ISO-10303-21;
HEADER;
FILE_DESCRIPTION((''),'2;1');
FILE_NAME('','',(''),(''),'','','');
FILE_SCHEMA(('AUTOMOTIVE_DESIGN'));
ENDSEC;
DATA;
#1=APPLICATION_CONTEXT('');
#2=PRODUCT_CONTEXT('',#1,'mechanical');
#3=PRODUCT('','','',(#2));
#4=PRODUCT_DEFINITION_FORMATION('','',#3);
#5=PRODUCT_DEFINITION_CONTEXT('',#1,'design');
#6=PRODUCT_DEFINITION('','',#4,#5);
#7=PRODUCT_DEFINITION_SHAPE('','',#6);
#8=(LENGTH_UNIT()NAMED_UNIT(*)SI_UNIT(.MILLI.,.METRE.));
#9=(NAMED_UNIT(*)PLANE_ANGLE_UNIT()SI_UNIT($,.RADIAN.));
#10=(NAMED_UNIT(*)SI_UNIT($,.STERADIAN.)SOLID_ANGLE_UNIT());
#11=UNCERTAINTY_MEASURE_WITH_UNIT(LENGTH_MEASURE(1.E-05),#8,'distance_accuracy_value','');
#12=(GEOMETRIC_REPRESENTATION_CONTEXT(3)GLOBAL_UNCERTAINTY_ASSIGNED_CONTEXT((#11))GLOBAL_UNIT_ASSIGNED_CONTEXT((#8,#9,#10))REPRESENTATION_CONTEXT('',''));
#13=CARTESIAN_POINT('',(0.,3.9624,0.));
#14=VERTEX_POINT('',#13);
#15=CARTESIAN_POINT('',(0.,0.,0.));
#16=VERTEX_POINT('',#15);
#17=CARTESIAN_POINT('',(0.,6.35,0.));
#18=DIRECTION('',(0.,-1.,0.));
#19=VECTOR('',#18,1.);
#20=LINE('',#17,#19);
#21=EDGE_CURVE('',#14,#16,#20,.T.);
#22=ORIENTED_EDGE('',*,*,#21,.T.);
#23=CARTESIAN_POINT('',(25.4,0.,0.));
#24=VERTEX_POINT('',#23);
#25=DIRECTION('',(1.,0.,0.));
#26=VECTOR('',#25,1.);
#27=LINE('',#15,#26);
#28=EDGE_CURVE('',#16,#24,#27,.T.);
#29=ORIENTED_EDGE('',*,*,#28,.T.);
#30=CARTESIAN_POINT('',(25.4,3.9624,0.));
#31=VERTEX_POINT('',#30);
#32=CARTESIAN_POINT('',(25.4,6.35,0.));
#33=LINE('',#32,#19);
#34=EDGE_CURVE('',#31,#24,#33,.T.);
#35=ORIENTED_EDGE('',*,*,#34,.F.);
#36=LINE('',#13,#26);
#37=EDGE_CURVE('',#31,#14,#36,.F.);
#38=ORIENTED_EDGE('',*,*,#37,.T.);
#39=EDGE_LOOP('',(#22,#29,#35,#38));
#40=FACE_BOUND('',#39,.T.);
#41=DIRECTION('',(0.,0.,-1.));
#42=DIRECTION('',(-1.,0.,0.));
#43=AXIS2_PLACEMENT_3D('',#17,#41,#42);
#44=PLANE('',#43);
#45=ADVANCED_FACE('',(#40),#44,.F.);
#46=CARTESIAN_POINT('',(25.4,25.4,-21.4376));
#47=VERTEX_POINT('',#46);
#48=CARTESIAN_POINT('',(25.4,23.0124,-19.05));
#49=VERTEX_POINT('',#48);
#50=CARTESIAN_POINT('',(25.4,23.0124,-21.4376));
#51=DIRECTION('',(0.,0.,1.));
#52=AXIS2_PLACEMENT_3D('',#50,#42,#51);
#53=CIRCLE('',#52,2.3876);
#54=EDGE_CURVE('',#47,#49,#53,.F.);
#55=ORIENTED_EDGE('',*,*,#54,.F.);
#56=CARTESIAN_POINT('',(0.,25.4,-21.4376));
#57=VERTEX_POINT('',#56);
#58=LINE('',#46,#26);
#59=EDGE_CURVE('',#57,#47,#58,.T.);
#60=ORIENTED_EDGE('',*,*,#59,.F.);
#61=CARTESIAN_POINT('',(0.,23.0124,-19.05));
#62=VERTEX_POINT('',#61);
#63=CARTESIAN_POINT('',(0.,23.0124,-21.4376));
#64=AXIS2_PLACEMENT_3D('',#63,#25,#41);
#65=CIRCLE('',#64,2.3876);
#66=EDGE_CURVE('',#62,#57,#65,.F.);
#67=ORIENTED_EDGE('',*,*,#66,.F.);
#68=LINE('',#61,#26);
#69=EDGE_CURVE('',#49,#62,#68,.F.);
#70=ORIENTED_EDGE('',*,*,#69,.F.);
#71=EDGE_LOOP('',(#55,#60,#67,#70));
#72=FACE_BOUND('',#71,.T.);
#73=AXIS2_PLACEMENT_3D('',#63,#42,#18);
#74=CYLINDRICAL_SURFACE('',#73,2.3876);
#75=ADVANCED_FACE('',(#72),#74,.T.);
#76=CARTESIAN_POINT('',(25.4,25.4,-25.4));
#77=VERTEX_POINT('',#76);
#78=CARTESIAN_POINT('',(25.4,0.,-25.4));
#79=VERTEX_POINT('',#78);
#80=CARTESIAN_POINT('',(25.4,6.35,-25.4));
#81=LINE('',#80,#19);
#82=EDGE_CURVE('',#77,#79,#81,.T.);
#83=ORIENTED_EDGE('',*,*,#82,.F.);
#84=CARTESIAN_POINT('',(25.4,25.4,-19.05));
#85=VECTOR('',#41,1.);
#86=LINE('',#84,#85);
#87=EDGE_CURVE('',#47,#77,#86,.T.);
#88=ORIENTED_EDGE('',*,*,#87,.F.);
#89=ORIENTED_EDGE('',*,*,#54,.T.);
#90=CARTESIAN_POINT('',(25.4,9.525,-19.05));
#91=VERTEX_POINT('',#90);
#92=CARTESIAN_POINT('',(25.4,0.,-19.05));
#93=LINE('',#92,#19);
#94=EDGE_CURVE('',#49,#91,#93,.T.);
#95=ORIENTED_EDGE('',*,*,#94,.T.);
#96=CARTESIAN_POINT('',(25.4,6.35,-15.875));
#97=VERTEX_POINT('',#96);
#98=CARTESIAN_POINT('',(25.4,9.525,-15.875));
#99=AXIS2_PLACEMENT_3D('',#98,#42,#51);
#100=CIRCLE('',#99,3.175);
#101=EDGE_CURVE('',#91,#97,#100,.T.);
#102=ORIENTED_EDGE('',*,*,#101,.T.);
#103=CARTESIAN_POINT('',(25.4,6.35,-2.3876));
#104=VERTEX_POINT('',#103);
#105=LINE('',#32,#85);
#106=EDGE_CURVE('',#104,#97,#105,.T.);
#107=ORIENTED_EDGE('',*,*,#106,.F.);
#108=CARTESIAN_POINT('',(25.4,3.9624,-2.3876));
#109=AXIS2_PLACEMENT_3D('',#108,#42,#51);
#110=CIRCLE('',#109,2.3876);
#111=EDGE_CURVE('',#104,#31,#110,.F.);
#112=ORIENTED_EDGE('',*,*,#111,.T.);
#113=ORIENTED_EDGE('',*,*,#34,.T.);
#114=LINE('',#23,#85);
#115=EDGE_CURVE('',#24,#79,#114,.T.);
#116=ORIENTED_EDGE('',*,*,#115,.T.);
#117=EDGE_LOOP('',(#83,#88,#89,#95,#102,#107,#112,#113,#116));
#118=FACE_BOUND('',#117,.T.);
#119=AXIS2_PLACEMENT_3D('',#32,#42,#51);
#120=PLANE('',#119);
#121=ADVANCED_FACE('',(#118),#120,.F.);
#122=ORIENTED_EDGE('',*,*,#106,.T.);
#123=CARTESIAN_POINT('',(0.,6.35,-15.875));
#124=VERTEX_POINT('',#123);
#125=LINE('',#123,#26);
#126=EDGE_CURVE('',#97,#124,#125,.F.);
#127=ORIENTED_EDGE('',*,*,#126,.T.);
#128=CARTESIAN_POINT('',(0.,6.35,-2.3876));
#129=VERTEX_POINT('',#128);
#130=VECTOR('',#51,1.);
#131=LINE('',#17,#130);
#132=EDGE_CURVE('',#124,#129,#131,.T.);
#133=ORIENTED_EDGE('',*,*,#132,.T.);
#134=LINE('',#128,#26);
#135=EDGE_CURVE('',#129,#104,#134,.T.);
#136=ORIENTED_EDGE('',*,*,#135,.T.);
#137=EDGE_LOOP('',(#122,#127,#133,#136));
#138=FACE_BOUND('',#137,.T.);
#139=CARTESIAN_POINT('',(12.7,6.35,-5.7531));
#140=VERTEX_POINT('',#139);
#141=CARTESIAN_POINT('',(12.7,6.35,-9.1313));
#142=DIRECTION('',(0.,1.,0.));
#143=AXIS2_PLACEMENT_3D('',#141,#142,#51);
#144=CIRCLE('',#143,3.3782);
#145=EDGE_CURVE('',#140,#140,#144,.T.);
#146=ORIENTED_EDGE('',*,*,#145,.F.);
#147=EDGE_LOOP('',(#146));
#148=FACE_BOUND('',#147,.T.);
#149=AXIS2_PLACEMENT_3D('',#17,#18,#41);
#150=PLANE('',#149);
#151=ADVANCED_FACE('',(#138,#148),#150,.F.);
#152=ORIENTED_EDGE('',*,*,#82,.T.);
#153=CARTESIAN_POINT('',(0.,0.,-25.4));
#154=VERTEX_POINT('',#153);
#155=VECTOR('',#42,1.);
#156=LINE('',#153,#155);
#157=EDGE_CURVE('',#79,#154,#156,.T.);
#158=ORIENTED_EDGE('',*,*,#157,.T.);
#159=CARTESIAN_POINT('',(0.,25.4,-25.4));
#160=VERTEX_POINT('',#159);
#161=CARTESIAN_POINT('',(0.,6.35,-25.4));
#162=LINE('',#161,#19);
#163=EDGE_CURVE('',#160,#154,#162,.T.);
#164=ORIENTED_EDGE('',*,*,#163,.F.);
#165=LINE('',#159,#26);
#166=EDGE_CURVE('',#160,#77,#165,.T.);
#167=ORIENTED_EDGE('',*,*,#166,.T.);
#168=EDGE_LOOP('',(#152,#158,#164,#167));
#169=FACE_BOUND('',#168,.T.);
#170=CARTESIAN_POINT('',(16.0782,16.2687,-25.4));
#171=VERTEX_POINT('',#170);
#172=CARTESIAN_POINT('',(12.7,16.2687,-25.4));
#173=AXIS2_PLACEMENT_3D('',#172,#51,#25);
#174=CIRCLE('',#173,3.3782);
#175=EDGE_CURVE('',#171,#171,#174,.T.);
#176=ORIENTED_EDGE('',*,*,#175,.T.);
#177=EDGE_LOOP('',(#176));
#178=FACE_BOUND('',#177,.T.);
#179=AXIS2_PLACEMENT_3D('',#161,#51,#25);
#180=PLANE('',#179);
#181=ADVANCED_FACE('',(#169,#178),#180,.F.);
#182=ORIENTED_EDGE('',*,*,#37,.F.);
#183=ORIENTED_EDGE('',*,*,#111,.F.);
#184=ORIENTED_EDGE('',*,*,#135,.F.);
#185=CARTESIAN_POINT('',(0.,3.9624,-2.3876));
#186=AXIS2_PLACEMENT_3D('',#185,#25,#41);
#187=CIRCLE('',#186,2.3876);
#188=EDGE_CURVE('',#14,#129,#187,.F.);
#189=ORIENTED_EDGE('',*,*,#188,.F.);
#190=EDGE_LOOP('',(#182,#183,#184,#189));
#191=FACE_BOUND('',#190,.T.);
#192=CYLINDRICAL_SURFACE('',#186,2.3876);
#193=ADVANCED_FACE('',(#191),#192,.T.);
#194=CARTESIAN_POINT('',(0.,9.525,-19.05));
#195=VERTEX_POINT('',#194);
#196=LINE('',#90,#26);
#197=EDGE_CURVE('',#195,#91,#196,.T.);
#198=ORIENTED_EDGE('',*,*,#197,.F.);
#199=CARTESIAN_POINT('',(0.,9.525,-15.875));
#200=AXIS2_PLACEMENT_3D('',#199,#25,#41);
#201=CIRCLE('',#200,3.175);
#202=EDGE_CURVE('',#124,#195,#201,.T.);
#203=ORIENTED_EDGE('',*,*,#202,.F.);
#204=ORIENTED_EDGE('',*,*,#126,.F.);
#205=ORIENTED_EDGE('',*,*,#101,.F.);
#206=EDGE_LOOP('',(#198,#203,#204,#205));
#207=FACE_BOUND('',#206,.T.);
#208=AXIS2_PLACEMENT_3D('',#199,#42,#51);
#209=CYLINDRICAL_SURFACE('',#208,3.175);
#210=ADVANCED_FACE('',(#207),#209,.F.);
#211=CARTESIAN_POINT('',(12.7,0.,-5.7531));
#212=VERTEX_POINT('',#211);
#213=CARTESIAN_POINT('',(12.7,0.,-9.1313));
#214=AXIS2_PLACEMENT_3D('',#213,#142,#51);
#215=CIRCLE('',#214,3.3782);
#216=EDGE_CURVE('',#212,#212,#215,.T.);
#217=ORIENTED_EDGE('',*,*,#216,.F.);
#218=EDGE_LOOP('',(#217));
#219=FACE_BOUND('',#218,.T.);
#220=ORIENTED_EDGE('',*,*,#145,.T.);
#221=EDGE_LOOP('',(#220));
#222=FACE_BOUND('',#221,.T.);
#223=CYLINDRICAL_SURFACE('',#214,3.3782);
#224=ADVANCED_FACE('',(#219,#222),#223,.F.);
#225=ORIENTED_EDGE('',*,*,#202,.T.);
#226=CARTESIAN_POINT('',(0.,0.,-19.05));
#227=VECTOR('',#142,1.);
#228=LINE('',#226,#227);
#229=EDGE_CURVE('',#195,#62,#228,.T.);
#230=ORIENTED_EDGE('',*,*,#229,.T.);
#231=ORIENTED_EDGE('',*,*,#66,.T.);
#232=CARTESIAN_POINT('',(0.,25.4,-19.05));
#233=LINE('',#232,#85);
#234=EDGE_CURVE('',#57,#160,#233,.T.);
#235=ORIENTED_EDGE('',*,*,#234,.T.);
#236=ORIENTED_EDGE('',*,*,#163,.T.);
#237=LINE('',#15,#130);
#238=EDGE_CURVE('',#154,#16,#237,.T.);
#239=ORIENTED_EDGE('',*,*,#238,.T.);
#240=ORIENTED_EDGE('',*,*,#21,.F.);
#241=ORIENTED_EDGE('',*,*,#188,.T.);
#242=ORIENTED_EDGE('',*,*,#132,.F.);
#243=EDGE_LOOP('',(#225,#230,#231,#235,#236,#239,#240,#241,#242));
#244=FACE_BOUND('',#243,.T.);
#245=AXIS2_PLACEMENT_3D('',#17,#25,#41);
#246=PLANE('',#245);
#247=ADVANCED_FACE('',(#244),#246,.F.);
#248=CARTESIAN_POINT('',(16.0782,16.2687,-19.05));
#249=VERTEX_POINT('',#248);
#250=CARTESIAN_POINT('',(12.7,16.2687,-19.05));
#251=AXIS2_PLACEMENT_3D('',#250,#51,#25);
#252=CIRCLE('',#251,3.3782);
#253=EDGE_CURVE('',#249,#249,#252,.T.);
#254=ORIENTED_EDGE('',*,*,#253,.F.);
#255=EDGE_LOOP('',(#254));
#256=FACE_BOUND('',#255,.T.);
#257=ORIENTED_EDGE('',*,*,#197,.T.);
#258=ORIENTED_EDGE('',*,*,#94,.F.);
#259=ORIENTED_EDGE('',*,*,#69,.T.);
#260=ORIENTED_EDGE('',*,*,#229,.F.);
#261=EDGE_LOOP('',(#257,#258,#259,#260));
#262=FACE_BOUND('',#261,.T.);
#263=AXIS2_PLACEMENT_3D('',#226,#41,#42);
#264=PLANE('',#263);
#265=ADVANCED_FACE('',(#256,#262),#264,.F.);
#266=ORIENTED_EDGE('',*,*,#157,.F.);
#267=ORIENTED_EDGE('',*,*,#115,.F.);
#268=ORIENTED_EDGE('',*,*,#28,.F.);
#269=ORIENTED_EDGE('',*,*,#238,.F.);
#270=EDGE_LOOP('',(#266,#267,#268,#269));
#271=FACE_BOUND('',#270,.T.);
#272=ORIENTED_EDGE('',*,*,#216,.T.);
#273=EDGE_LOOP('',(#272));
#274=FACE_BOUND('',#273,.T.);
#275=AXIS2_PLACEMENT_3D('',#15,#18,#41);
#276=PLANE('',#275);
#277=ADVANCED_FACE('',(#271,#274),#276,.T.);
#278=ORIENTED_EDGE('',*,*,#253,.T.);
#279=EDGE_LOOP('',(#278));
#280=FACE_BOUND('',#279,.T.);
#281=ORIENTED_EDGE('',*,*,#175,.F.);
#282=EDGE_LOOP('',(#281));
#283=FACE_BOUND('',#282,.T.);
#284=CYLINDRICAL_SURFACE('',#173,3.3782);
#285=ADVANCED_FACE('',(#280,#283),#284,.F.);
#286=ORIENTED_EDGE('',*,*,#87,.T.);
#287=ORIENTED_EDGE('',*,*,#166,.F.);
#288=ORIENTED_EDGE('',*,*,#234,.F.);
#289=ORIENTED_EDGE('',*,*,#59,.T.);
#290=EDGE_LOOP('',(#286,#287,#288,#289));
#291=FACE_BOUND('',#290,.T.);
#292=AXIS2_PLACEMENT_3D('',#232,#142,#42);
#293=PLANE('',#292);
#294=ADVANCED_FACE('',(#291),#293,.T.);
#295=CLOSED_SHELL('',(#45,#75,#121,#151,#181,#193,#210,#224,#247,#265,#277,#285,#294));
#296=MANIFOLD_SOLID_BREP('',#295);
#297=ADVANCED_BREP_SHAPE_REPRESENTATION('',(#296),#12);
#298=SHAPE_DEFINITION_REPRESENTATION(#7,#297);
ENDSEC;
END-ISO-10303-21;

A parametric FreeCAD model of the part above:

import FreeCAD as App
import Part
import Sketcher

V = App.Vector
Q = App.Units.Quantity


def edges_at(feature, points):
    """Names of the edges that pass closest to the given points."""
    edges = feature.Shape.Edges
    near = lambda p: min(range(len(edges)), key=lambda i: edges[i].distToShape(Part.Vertex(*p))[0])
    return sorted({f"Edge{near(p) + 1}" for p in points})

doc = App.newDocument("Part")
body = doc.addObject("PartDesign::Body", "Body")

sketch1 = body.newObject("Sketcher::SketchObject", "Sketch")
sketch1.AttachmentSupport = (doc.getObject("XZ_Plane"), [""])
sketch1.MapMode = "FlatFace"
sketch1.addGeometry(Part.LineSegment(V(0, -25.4, 0), V(0, 0, 0)), False)
sketch1.addGeometry(Part.LineSegment(V(0, 0, 0), V(25.4, 0, 0)), False)
sketch1.addGeometry(Part.LineSegment(V(25.4, 0, 0), V(25.4, -25.4, 0)), False)
sketch1.addGeometry(Part.LineSegment(V(25.4, -25.4, 0), V(0, -25.4, 0)), False)
sketch1.addConstraint(Sketcher.Constraint("Coincident", 0, 2, 1, 1))
sketch1.addConstraint(Sketcher.Constraint("Coincident", 1, 2, 2, 1))
sketch1.addConstraint(Sketcher.Constraint("Coincident", 2, 2, 3, 1))
sketch1.addConstraint(Sketcher.Constraint("Coincident", 3, 2, 0, 1))
sketch1.addConstraint(Sketcher.Constraint("Vertical", 0))
sketch1.addConstraint(Sketcher.Constraint("Horizontal", 1))
sketch1.addConstraint(Sketcher.Constraint("Vertical", 2))
sketch1.addConstraint(Sketcher.Constraint("Horizontal", 3))
sketch1.addConstraint(Sketcher.Constraint("Coincident", 0, 2, -1, 1))
sketch1.addConstraint(Sketcher.Constraint("Equal", 3, 0))
sketch1.addConstraint(Sketcher.Constraint("DistanceX", 1, 1, 1, 2, Q("1 in")))
pad1 = body.newObject("PartDesign::Pad", "Pad")
pad1.Profile = sketch1
pad1.Length = Q("0.25 in")
pad1.Reversed = True

sketch2 = body.newObject("Sketcher::SketchObject", "Sketch001")
sketch2.AttachmentSupport = (doc.getObject("XY_Plane"), [""])
sketch2.MapMode = "FlatFace"
sketch2.AttachmentOffset = App.Placement(V(0, 0, -1 * 25.4), App.Rotation())
sketch2.addGeometry(Part.LineSegment(V(25.4, 25.4, 0), V(25.4, 0, 0)), False)
sketch2.addGeometry(Part.LineSegment(V(25.4, 0, 0), V(0, 0, 0)), False)
sketch2.addGeometry(Part.LineSegment(V(0, 0, 0), V(0, 25.4, 0)), False)
sketch2.addGeometry(Part.LineSegment(V(0, 25.4, 0), V(25.4, 25.4, 0)), False)
sketch2.addConstraint(Sketcher.Constraint("Coincident", 0, 2, 1, 1))
sketch2.addConstraint(Sketcher.Constraint("Coincident", 1, 2, 2, 1))
sketch2.addConstraint(Sketcher.Constraint("Coincident", 2, 2, 3, 1))
sketch2.addConstraint(Sketcher.Constraint("Coincident", 3, 2, 0, 1))
sketch2.addConstraint(Sketcher.Constraint("Vertical", 0))
sketch2.addConstraint(Sketcher.Constraint("Horizontal", 1))
sketch2.addConstraint(Sketcher.Constraint("Vertical", 2))
sketch2.addConstraint(Sketcher.Constraint("Horizontal", 3))
sketch2.addConstraint(Sketcher.Constraint("Coincident", 1, 2, -1, 1))
sketch2.addConstraint(Sketcher.Constraint("Equal", 3, 0))
sketch2.addConstraint(Sketcher.Constraint("DistanceX", 1, 2, 1, 1, Q("1 in")))
pad2 = body.newObject("PartDesign::Pad", "Pad001")
pad2.Profile = sketch2
pad2.Length = Q("0.25 in")
doc.recompute()

fillet = body.newObject("PartDesign::Fillet", "Fillet")
fillet.Base = (pad2, edges_at(pad2, [(12.7, 6.35, -19.05)]))
fillet.Radius = Q("0.125 in")
doc.recompute()

fillet2 = body.newObject("PartDesign::Fillet", "Fillet001")
fillet2.Base = (fillet, edges_at(fillet, [(12.7, 25.4, -19.05), (12.7, 6.35, 0)]))
fillet2.Radius = Q("0.094 in")

sketch3 = body.newObject("Sketcher::SketchObject", "Sketch002")
sketch3.AttachmentSupport = (doc.getObject("XZ_Plane"), [""])
sketch3.MapMode = "FlatFace"
sketch3.AttachmentOffset = App.Placement(V(0, 0, -0.25 * 25.4), App.Rotation())
sketch3.addGeometry(Part.Circle(V(12.7, -9.1313, 0), V(0, 0, 1), 3.3782), False)
sketch3.addGeometry(Part.Circle(V(29.80436, -9.1313, 0), V(0, 0, 1), 3.3782), False)
sketch3.addGeometry(Part.Circle(V(46.39564, -9.1313, 0), V(0, 0, 1), 3.3782), False)
sketch3.addGeometry(Part.Circle(V(33.500058, -19.570387, 0), V(0, 0, 1), 3.3782), False)
sketch3.addConstraint(Sketcher.Constraint("Equal", 0, 1))
sketch3.addConstraint(Sketcher.Constraint("Equal", 1, 2))
sketch3.addConstraint(Sketcher.Constraint("Equal", 2, 3))
sketch3.addConstraint(Sketcher.Constraint("Horizontal", 0, 3, 1, 3))
sketch3.addConstraint(Sketcher.Constraint("Horizontal", 1, 3, 2, 3))
sketch3.addConstraint(Sketcher.Constraint("Diameter", 0, Q("0.266 in")))
sketch3.addConstraint(Sketcher.Constraint("DistanceX", -1, 1, 0, 3, Q("0.5 in")))
sketch3.addConstraint(Sketcher.Constraint("DistanceY", 0, 3, -1, 1, Q("0.3595 in")))
sketch3.addConstraint(Sketcher.Constraint("DistanceX", -1, 1, 1, 3, Q("1.1734 in")))
sketch3.addConstraint(Sketcher.Constraint("DistanceX", -1, 1, 2, 3, Q("1.8266 in")))
sketch3.addConstraint(Sketcher.Constraint("DistanceX", -1, 1, 3, 3, Q("1.3188999 in")))
sketch3.addConstraint(Sketcher.Constraint("DistanceY", 3, 3, -1, 1, 19.570387))
pocket1 = body.newObject("PartDesign::Pocket", "Pocket")
pocket1.Profile = sketch3
pocket1.Type = "ThroughAll"
pocket1.Reversed = True

sketch4 = body.newObject("Sketcher::SketchObject", "Sketch003")
sketch4.AttachmentSupport = (doc.getObject("XY_Plane"), [""])
sketch4.MapMode = "FlatFace"
sketch4.AttachmentOffset = App.Placement(V(0, 0, -0.75 * 25.4), App.Rotation())
sketch4.addGeometry(Part.Circle(V(-37.07384, 16.2687, 0), V(0, 0, 1), 3.3782), False)
sketch4.addGeometry(Part.Circle(V(-20.48256, 16.2687, 0), V(0, 0, 1), 3.3782), False)
sketch4.addGeometry(Part.Circle(V(-3.89128, 16.2687, 0), V(0, 0, 1), 3.3782), False)
sketch4.addGeometry(Part.Circle(V(12.7, 16.2687, 0), V(0, 0, 1), 3.3782), False)
sketch4.addConstraint(Sketcher.Constraint("Equal", 0, 1))
sketch4.addConstraint(Sketcher.Constraint("Equal", 1, 2))
sketch4.addConstraint(Sketcher.Constraint("Equal", 2, 3))
sketch4.addConstraint(Sketcher.Constraint("Horizontal", 0, 3, 1, 3))
sketch4.addConstraint(Sketcher.Constraint("Horizontal", 1, 3, 2, 3))
sketch4.addConstraint(Sketcher.Constraint("Horizontal", 2, 3, 3, 3))
sketch4.addConstraint(Sketcher.Constraint("Diameter", 0, Q("0.266 in")))
sketch4.addConstraint(Sketcher.Constraint("DistanceX", -1, 1, 3, 3, Q("0.5 in")))
sketch4.addConstraint(Sketcher.Constraint("DistanceX", 0, 3, -1, 1, Q("1.4596 in")))
sketch4.addConstraint(Sketcher.Constraint("DistanceY", -1, 1, 0, 3, Q("0.6405 in")))
sketch4.addConstraint(Sketcher.Constraint("DistanceX", 1, 3, -1, 1, Q("0.8064 in")))
sketch4.addConstraint(Sketcher.Constraint("DistanceX", 2, 3, -1, 1, Q("0.1532 in")))
pocket2 = body.newObject("PartDesign::Pocket", "Pocket001")
pocket2.Profile = sketch4
pocket2.Type = "ThroughAll"

doc.recompute()
